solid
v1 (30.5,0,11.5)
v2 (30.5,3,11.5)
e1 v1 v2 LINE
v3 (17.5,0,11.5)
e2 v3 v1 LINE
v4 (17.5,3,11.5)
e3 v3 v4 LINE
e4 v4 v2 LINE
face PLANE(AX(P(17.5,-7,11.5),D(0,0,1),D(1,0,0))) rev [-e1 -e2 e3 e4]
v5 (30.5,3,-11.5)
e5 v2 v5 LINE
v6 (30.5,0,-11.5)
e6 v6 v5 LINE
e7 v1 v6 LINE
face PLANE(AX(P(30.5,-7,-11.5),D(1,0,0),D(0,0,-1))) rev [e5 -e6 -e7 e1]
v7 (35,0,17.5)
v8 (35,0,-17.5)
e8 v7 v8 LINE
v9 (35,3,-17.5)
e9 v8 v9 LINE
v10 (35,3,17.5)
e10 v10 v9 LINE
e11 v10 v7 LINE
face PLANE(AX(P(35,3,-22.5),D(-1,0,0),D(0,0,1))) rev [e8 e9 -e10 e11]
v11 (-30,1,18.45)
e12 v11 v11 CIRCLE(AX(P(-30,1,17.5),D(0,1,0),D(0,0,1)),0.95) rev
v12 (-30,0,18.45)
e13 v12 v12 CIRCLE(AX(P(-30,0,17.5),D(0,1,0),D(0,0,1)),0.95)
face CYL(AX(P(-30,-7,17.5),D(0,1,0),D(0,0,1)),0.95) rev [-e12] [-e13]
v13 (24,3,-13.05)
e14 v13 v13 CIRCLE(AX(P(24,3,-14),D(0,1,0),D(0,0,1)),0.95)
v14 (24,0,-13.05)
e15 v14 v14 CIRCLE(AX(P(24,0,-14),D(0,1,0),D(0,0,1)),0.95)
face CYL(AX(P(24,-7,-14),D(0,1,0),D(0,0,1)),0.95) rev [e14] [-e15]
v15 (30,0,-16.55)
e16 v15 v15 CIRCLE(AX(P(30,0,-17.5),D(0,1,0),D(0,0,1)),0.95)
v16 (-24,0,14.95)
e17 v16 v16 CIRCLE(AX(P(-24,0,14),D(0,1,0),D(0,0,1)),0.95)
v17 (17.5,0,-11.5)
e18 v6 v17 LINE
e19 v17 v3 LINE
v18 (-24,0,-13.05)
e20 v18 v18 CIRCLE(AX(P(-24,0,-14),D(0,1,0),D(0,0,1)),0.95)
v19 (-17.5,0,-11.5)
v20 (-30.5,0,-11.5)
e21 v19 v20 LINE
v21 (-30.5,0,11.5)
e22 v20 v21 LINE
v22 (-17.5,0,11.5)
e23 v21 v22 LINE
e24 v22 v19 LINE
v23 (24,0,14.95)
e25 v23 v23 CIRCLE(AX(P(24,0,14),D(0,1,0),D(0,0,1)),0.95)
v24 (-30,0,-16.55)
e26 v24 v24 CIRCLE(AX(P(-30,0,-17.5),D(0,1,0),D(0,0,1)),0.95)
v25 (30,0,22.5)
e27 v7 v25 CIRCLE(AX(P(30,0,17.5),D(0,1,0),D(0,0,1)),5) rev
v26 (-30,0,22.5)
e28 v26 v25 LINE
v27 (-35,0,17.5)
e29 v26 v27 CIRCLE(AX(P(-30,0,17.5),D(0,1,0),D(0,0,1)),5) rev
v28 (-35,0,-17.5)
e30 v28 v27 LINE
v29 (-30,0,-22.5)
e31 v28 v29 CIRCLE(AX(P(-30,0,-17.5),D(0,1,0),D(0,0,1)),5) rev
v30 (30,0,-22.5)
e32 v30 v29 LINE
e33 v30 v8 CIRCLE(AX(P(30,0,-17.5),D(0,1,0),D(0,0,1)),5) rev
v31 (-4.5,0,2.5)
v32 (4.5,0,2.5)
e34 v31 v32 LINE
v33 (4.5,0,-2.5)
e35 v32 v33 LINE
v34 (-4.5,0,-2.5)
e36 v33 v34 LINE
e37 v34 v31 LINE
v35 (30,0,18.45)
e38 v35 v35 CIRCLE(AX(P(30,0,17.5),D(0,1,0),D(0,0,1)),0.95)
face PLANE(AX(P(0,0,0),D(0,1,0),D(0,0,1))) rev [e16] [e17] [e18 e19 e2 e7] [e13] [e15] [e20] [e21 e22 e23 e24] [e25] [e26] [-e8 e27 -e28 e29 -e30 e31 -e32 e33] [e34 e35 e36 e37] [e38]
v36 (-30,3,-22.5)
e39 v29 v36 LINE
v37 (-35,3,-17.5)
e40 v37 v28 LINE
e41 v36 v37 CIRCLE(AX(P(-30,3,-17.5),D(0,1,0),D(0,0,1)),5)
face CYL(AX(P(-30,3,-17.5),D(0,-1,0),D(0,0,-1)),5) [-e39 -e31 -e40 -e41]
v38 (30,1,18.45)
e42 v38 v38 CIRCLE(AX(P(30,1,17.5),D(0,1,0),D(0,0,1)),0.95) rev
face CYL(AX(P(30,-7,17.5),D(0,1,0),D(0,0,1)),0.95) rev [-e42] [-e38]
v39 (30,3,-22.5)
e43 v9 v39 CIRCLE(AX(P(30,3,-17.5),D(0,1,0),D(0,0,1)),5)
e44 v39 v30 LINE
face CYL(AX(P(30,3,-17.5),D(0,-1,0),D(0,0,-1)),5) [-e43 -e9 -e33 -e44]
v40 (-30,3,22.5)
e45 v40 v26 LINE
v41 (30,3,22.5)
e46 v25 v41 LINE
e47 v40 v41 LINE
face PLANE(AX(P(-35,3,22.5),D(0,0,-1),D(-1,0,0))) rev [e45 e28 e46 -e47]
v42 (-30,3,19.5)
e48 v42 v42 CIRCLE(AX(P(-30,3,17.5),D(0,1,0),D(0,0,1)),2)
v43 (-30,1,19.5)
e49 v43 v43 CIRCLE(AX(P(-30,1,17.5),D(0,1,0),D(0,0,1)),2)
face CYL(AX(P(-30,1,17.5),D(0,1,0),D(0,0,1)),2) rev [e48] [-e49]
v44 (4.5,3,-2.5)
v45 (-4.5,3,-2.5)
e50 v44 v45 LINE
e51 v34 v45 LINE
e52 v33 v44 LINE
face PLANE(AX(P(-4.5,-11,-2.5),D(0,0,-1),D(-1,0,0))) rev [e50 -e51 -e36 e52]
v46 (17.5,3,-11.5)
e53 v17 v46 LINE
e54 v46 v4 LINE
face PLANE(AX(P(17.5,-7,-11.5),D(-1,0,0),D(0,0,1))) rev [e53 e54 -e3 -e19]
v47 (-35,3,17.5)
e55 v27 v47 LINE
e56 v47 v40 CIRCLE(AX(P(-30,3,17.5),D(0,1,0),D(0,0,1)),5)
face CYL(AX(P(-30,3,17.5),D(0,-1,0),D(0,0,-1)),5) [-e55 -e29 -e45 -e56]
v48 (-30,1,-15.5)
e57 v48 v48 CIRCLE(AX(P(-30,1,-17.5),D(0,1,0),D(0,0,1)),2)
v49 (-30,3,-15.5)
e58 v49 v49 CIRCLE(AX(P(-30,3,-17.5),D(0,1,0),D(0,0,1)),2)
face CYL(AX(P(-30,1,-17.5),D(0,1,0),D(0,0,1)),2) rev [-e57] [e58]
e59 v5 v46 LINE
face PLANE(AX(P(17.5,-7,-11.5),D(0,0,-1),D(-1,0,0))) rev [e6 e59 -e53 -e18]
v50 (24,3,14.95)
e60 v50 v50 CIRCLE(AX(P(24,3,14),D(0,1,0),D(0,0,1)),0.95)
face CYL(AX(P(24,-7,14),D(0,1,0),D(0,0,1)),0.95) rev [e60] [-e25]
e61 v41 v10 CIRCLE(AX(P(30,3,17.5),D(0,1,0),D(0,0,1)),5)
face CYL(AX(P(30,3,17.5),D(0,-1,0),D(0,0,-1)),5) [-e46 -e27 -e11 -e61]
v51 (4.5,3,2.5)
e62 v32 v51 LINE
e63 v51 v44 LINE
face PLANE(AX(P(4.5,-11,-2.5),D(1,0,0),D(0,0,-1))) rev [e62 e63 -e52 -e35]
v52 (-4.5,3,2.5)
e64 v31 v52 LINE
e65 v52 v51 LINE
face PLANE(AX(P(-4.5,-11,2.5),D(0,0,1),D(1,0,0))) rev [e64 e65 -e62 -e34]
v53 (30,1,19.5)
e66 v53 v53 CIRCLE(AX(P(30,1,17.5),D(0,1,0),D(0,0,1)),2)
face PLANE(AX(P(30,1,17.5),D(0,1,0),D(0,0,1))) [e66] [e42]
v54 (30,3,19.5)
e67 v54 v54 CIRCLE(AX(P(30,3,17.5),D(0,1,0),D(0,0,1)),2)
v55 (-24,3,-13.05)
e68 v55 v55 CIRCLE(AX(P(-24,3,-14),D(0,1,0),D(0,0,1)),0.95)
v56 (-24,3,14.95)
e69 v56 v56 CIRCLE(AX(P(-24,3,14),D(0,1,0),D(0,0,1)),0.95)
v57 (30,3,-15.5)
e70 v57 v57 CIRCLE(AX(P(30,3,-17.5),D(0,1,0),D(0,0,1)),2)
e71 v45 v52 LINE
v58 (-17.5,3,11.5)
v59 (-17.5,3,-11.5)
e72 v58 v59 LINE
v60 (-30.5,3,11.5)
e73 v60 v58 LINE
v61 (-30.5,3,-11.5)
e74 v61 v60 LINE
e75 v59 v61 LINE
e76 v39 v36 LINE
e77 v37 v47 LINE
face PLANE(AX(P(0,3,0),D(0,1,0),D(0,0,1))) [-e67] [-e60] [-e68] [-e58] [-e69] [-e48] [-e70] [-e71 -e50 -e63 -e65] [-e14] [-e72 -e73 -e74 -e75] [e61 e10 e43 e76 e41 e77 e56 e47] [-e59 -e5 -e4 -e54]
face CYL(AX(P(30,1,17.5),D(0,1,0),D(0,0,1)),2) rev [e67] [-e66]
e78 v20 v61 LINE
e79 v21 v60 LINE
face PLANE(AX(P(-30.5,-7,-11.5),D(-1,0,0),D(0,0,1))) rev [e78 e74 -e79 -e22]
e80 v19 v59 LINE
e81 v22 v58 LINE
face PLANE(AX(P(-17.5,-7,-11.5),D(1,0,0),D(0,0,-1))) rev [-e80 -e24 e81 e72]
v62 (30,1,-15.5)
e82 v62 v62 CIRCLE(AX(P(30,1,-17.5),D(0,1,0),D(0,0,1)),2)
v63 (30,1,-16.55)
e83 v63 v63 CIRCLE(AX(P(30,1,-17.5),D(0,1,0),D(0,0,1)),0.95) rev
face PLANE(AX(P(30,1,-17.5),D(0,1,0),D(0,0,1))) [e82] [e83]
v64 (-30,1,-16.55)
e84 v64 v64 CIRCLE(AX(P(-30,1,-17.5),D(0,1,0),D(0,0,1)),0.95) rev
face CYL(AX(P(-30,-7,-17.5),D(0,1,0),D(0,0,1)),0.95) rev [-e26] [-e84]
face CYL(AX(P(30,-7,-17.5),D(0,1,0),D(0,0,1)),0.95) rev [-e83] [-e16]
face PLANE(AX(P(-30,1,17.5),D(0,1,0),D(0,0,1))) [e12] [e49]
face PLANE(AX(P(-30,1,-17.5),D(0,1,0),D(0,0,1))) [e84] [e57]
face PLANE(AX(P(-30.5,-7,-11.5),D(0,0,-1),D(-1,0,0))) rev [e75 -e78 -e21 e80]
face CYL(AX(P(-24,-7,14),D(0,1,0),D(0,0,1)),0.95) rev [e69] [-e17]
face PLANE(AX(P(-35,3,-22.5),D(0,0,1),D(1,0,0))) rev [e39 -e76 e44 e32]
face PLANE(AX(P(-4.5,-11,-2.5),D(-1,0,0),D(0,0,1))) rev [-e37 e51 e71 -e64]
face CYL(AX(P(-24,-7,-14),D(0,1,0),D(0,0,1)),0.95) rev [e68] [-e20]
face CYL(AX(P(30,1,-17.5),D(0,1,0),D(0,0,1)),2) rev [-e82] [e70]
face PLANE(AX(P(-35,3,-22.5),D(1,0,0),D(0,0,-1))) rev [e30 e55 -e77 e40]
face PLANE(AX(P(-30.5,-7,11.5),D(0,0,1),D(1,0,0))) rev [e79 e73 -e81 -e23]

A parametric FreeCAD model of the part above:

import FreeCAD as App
import Part
import Sketcher
Q = App.Units.Quantity


def edges_at(feature, points):
    """Names of the edges that pass closest to the given points."""
    edges = feature.Shape.Edges
    near = lambda p: min(range(len(edges)), key=lambda i: edges[i].distToShape(Part.Vertex(*p))[0])
    return sorted({f"Edge{near(p) + 1}" for p in points})


def add_polygon(sketch, points):
    """Adds a closed chain of lines whose ends are joined by coincident constraints."""
    first, n = sketch.GeometryCount, len(points)
    for a, b in zip(points, points[1:] + points[:1]):
        sketch.addGeometry(Part.LineSegment(App.Vector(*a, 0), App.Vector(*b, 0)), False)
    for i in range(n):
        sketch.addConstraint(Sketcher.Constraint("Coincident", first + i, 2, first + (i + 1) % n, 1))

doc = App.newDocument("Part")
body = doc.addObject("PartDesign::Body", "Body")

sketch1 = body.newObject("Sketcher::SketchObject", "Sketch")
sketch1.AttachmentSupport = (doc.getObject("XZ_Plane"), [""])
sketch1.MapMode = "FlatFace"
add_polygon(sketch1, [(-35, -22), (-35, 22), (35, 22), (35, -22)])
sketch1.addConstraint([
    Sketcher.Constraint("Vertical", 0),
    Sketcher.Constraint("Horizontal", 1),
    Sketcher.Constraint("Vertical", 2),
    Sketcher.Constraint("Horizontal", 3),
    Sketcher.Constraint("Symmetric", 0, 2, 2, 2, -1, 1),
    Sketcher.Constraint("DistanceX", 1, 1, 1, 2, Q("70 mm")),
    Sketcher.Constraint("DistanceY", 0, 1, 0, 2, Q("45 mm")),
])
pad1 = body.newObject("PartDesign::Pad", "Pad")
pad1.Profile = sketch1
pad1.Length = 3
pad1.Reversed = True

sketch2 = body.newObject("Sketcher::SketchObject", "Sketch001")
sketch2.AttachmentSupport = (doc.getObject("XZ_Plane"), [""])
sketch2.MapMode = "FlatFace"
sketch2.AttachmentOffset = App.Placement(App.Vector(0, 0, -3), App.Rotation())
add_polygon(sketch2, [(18, -12), (18, 12), (30, 12), (30, -12)])
add_polygon(sketch2, [(-30, -12), (-30, 12), (-18, 12), (-18, -12)])
sketch2.addConstraint([
    Sketcher.Constraint("Vertical", 0),
    Sketcher.Constraint("Horizontal", 1),
    Sketcher.Constraint("Vertical", 2),
    Sketcher.Constraint("Horizontal", 3),
    Sketcher.Constraint("Vertical", 4),
    Sketcher.Constraint("Horizontal", 5),
    Sketcher.Constraint("Vertical", 6),
    Sketcher.Constraint("Horizontal", 7),
    Sketcher.Constraint("Symmetric", 2, 2, 4, 2, -1, 1),
    Sketcher.Constraint("Symmetric", 0, 2, 6, 2, -1, 1),
    Sketcher.Constraint("Horizontal", 1, 2, 4, 2),
    Sketcher.Constraint("DistanceX", 1, 1, 1, 2, Q("13 mm")),
    Sketcher.Constraint("DistanceY", 0, 1, 0, 2, Q("23 mm")),
    Sketcher.Constraint("DistanceX", 4, 2, 0, 2, Q("48 mm")),
])
pocket1 = body.newObject("PartDesign::Pocket", "Pocket")
pocket1.Profile = sketch2
pocket1.Length = 10
pocket1.Reversed = True

sketch3 = body.newObject("Sketcher::SketchObject", "Sketch002")
sketch3.AttachmentSupport = (doc.getObject("XZ_Plane"), [""])
sketch3.MapMode = "FlatFace"
sketch3.AttachmentOffset = App.Placement(App.Vector(0, 0, -3), App.Rotation())
sketch3.addGeometry([
    Part.Circle(App.Vector(-24, -14, 0), App.Vector(0, 0, 1), 0.9),
    Part.Circle(App.Vector(-24, 14, 0), App.Vector(0, 0, 1), 0.9),
    Part.Circle(App.Vector(24, -14, 0), App.Vector(0, 0, 1), 0.9),
    Part.Circle(App.Vector(24, 14, 0), App.Vector(0, 0, 1), 0.9),
], False)
sketch3.addConstraint([
    Sketcher.Constraint("Equal", 0, 1),
    Sketcher.Constraint("Equal", 1, 2),
    Sketcher.Constraint("Equal", 2, 3),
    Sketcher.Constraint("Symmetric", 1, 3, 2, 3, -1, 1),
    Sketcher.Constraint("Symmetric", 0, 3, 3, 3, -1, 1),
    Sketcher.Constraint("Symmetric", 0, 3, 2, 3, -2),
    Sketcher.Constraint("Diameter", 0, Q("1.9 mm")),
    Sketcher.Constraint("DistanceX", 0, 3, -1, 1, Q("24 mm")),
    Sketcher.Constraint("DistanceY", 0, 3, -1, 1, Q("14 mm")),
])
pocket2 = body.newObject("PartDesign::Pocket", "Pocket001")
pocket2.Profile = sketch3
pocket2.Length = 10
pocket2.Reversed = True
doc.recompute()

fillet = body.newObject("PartDesign::Fillet", "Fillet")
fillet.Base = (pocket2, edges_at(pocket2, [(35, 1.5, -22.5)]))
fillet.Radius = 5
doc.recompute()

fillet2 = body.newObject("PartDesign::Fillet", "Fillet001")
fillet2.Base = (fillet, edges_at(fillet, [(35, 1.5, 22.5), (-35, 1.5, 22.5), (-35, 1.5, -22.5)]))
fillet2.Radius = 5

sketch4 = body.newObject("Sketcher::SketchObject", "Sketch003")
sketch4.AttachmentSupport = (doc.getObject("XZ_Plane"), [""])
sketch4.MapMode = "FlatFace"
sketch4.AttachmentOffset = App.Placement(App.Vector(0, 0, -3), App.Rotation())
sketch4.addGeometry([
    Part.Circle(App.Vector(-30, -17.5, 0), App.Vector(0, 0, 1), 0.9),
    Part.Circle(App.Vector(30, -17.5, 0), App.Vector(0, 0, 1), 0.9),
    Part.Circle(App.Vector(-30, 17.5, 0), App.Vector(0, 0, 1), 0.9),
    Part.Circle(App.Vector(30, 17.5, 0), App.Vector(0, 0, 1), 0.9),
], False)
sketch4.addConstraint([
    Sketcher.Constraint("Equal", 0, 1),
    Sketcher.Constraint("Equal", 1, 2),
    Sketcher.Constraint("Equal", 2, 3),
    Sketcher.Constraint("Symmetric", 1, 3, 2, 3, -1, 1),
    Sketcher.Constraint("Symmetric", 0, 3, 3, 3, -1, 1),
    Sketcher.Constraint("Symmetric", 0, 3, 1, 3, -2),
    Sketcher.Constraint("Diameter", 0, Q("1.9 mm")),
    Sketcher.Constraint("DistanceX", 0, 3, -1, 1, Q("30 mm")),
    Sketcher.Constraint("DistanceY", 0, 3, 2, 3, Q("35 mm")),
])
pocket3 = body.newObject("PartDesign::Pocket", "Pocket002")
pocket3.Profile = sketch4
pocket3.Length = 10
pocket3.Reversed = True

sketch5 = body.newObject("Sketcher::SketchObject", "Sketch004")
sketch5.AttachmentSupport = (doc.getObject("XZ_Plane"), [""])
sketch5.MapMode = "FlatFace"
sketch5.AttachmentOffset = App.Placement(App.Vector(0, 0, -3), App.Rotation())
sketch5.addGeometry([
    Part.Circle(App.Vector(-30, -17.5, 0), App.Vector(0, 0, 1), 2),
    Part.Circle(App.Vector(30, -17.5, 0), App.Vector(0, 0, 1), 2),
    Part.Circle(App.Vector(-30, 17.5, 0), App.Vector(0, 0, 1), 2),
    Part.Circle(App.Vector(30, 17.5, 0), App.Vector(0, 0, 1), 2),
], False)
sketch5.addConstraint([
    Sketcher.Constraint("Equal", 0, 1),
    Sketcher.Constraint("Equal", 1, 2),
    Sketcher.Constraint("Equal", 2, 3),
    Sketcher.Constraint("Symmetric", 1, 3, 2, 3, -1, 1),
    Sketcher.Constraint("Symmetric", 0, 3, 3, 3, -1, 1),
    Sketcher.Constraint("Symmetric", 0, 3, 1, 3, -2),
    Sketcher.Constraint("Diameter", 0, Q("4 mm")),
    Sketcher.Constraint("DistanceX", 0, 3, -1, 1, Q("30 mm")),
    Sketcher.Constraint("DistanceY", 0, 3, 2, 3, Q("35 mm")),
])
pocket4 = body.newObject("PartDesign::Pocket", "Pocket003")
pocket4.Profile = sketch5
pocket4.Length = 2
pocket4.Reversed = True

sketch6 = body.newObject("Sketcher::SketchObject", "Sketch005")
sketch6.AttachmentSupport = (doc.getObject("XZ_Plane"), [""])
sketch6.MapMode = "FlatFace"
sketch6.AttachmentOffset = App.Placement(App.Vector(0, 0, -3), App.Rotation())
add_polygon(sketch6, [(-4, -2), (-4, 2), (4, 2), (4, -2)])
sketch6.addConstraint([
    Sketcher.Constraint("Vertical", 0),
    Sketcher.Constraint("Horizontal", 1),
    Sketcher.Constraint("Vertical", 2),
    Sketcher.Constraint("Horizontal", 3),
    Sketcher.Constraint("Symmetric", 0, 2, 2, 2, -1, 1),
    Sketcher.Constraint("DistanceX", 1, 1, 1, 2, Q("9 mm")),
    Sketcher.Constraint("DistanceY", 0, 1, 0, 2, Q("5 mm")),
])
pocket5 = body.newObject("PartDesign::Pocket", "Pocket004")
pocket5.Profile = sketch6
pocket5.Length = 14
pocket5.Reversed = True

doc.recompute()
